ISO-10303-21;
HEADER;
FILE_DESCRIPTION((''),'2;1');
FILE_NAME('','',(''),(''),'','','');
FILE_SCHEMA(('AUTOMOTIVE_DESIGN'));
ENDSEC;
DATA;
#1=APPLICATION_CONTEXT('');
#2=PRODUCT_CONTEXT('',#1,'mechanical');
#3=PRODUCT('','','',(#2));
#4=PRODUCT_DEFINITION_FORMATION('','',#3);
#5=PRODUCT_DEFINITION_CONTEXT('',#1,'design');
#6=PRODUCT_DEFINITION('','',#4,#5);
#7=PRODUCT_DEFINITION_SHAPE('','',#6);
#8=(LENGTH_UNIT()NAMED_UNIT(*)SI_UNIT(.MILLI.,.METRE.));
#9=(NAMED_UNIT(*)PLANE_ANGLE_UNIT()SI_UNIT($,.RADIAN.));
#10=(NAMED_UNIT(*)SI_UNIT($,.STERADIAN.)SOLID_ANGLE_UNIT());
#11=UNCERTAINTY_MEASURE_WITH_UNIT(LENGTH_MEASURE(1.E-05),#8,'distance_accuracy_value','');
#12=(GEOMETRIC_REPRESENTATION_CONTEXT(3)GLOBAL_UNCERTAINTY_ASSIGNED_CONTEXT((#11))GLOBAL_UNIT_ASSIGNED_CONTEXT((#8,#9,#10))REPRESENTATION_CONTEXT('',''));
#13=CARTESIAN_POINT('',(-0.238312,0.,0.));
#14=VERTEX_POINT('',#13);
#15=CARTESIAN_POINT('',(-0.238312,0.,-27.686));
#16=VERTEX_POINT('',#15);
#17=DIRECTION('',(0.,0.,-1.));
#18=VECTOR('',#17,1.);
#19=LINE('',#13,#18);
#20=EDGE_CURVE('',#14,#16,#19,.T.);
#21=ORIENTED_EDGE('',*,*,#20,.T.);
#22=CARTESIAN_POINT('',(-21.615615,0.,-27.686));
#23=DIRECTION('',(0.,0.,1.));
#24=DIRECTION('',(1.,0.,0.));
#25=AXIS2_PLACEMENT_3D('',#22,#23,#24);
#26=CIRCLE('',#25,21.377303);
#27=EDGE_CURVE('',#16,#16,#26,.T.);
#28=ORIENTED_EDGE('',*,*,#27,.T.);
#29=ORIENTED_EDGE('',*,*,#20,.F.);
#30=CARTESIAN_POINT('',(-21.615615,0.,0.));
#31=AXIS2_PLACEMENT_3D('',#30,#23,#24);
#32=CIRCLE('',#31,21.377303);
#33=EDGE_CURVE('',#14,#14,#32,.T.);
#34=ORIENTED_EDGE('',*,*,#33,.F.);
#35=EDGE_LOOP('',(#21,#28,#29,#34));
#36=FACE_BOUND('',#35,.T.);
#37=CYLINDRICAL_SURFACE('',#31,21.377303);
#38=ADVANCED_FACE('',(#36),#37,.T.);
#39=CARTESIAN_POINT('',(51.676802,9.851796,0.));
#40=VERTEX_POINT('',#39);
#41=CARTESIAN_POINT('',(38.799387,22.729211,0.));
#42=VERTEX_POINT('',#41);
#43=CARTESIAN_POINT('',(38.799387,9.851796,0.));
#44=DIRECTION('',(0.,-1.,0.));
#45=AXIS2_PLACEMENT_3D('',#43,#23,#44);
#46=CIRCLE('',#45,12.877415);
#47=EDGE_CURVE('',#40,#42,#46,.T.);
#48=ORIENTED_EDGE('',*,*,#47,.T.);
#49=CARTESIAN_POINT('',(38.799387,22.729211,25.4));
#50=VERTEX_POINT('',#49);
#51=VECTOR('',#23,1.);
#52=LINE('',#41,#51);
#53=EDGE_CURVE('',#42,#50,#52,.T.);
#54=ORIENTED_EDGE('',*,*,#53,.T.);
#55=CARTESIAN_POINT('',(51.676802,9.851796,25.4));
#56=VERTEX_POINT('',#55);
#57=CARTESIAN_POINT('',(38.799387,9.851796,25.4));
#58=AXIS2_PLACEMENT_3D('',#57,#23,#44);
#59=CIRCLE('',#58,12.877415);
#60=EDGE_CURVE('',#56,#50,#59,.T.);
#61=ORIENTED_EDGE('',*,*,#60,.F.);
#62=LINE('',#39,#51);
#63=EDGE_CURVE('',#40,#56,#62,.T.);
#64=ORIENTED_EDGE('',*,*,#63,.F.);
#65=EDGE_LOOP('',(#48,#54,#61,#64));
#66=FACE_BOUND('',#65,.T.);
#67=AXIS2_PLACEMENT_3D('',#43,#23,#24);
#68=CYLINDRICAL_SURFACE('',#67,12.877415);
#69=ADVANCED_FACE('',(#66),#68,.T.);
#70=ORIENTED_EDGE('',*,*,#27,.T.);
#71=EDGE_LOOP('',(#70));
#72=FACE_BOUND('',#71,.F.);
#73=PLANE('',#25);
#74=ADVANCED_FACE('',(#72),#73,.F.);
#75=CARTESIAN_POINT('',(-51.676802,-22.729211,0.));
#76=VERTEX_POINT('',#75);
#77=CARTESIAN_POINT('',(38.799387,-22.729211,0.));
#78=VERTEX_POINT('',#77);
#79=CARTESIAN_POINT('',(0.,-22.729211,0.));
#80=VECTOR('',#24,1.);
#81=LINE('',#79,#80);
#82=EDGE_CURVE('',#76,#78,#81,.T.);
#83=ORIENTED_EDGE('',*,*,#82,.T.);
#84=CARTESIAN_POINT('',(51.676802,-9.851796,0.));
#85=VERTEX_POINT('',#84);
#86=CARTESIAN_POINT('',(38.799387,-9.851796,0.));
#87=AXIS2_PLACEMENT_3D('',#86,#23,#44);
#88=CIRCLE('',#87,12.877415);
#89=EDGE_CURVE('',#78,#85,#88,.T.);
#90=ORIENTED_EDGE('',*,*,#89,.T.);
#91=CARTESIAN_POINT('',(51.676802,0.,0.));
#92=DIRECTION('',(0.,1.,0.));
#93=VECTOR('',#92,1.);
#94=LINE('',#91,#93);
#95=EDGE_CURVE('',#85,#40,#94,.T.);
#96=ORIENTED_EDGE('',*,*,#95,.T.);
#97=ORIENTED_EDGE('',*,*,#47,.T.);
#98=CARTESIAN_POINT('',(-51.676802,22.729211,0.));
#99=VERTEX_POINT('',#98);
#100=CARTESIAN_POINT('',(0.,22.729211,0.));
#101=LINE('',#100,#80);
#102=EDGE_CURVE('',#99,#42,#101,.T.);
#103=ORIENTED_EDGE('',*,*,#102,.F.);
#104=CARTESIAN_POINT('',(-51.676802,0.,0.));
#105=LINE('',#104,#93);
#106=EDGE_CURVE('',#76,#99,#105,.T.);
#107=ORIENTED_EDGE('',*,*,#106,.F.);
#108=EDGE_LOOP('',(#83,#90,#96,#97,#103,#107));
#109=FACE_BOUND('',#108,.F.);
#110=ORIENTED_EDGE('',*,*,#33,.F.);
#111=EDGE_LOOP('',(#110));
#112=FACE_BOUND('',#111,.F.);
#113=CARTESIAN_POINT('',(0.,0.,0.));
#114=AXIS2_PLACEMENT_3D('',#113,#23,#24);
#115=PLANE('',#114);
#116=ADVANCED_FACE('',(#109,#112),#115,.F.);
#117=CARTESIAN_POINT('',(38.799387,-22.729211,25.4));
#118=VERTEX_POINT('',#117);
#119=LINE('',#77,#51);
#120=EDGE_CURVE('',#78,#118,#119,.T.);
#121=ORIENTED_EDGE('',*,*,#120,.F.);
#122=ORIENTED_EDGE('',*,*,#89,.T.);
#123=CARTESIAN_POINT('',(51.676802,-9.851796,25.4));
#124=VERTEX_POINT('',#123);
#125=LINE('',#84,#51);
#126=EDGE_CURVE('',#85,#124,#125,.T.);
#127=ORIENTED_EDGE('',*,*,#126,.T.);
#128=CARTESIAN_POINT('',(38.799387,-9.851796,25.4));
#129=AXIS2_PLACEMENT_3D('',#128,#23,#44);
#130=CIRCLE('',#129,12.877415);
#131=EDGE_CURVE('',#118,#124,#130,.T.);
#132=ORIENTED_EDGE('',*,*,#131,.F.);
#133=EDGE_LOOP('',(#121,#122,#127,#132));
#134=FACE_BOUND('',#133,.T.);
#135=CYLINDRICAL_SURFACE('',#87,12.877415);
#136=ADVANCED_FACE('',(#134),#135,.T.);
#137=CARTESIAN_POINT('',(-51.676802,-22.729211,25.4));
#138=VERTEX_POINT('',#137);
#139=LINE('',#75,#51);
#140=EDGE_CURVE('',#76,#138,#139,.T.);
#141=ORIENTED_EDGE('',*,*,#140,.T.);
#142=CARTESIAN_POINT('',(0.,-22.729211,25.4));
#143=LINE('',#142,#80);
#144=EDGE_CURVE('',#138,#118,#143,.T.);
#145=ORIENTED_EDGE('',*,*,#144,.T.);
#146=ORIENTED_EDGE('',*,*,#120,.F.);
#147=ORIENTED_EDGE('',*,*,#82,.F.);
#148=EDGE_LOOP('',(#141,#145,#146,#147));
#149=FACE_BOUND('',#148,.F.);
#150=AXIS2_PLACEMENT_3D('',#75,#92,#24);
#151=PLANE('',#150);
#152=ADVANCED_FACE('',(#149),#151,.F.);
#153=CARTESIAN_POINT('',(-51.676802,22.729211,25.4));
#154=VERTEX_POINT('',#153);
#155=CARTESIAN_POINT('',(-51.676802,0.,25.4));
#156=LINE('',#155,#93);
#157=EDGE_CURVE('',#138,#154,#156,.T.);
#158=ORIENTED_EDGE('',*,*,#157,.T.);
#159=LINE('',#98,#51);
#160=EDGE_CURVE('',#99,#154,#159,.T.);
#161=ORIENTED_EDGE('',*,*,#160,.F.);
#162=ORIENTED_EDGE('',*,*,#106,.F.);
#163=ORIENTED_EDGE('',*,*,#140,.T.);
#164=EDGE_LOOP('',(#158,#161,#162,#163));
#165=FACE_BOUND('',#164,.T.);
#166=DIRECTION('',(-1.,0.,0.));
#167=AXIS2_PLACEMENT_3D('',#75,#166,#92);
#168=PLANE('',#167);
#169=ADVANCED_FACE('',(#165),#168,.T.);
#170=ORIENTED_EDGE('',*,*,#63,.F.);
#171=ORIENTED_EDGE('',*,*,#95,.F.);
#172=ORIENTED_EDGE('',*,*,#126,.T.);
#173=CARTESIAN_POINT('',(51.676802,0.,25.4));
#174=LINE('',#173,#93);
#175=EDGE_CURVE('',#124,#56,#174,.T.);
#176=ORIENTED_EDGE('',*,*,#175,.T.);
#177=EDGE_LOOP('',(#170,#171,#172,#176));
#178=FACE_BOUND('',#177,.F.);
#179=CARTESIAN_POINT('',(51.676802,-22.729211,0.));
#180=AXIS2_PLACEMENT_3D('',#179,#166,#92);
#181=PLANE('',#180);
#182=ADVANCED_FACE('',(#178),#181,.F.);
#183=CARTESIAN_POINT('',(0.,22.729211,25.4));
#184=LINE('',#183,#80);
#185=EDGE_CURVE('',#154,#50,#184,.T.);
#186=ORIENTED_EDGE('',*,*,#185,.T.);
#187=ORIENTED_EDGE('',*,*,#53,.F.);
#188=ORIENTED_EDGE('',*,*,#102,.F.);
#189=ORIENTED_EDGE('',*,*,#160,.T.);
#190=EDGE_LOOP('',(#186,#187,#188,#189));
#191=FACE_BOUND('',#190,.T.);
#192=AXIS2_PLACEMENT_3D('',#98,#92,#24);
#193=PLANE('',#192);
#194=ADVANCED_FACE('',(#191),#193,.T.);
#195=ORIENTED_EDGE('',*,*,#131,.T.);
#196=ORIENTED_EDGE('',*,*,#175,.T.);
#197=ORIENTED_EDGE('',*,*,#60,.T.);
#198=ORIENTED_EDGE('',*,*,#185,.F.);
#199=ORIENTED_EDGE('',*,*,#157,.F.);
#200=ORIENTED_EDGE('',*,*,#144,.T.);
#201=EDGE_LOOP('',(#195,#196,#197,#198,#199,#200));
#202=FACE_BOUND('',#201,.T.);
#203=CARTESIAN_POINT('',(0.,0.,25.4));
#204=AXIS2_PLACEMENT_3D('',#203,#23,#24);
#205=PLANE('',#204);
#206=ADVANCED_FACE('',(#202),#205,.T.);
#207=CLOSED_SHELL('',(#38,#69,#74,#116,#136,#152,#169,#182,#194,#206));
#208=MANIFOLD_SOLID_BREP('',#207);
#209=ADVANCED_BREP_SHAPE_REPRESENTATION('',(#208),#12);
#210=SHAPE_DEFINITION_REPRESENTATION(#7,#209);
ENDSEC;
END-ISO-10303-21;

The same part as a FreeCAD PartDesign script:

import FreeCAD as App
import Part
import Sketcher
Q = App.Units.Quantity


def edges_at(feature, points):
    """Names of the edges that pass closest to the given points."""
    edges = feature.Shape.Edges
    near = lambda p: min(range(len(edges)), key=lambda i: edges[i].distToShape(Part.Vertex(*p))[0])
    return sorted({f"Edge{near(p) + 1}" for p in points})

doc = App.newDocument("Part")
body = doc.addObject("PartDesign::Body", "Body")

# Sketch on XY plane
sketch1 = doc.addObject("Sketcher::SketchObject", "Sketch")
body.addObject(sketch1)
sketch1.AttachmentSupport = (doc.XY_Plane, [""])
sketch1.MapMode = "FlatFace"
sketch1.addGeometry([
    Part.LineSegment(App.Vector(-52, 23, 0), App.Vector(-52, -23, 0)),
    Part.LineSegment(App.Vector(-52, -23, 0), App.Vector(52, -23, 0)),
    Part.LineSegment(App.Vector(52, -23, 0), App.Vector(52, 23, 0)),
    Part.LineSegment(App.Vector(52, 23, 0), App.Vector(-52, 23, 0)),
], False)
sketch1.addConstraint([
    Sketcher.Constraint("Coincident", 0, 2, 1, 1),
    Sketcher.Constraint("Coincident", 1, 2, 2, 1),
    Sketcher.Constraint("Coincident", 2, 2, 3, 1),
    Sketcher.Constraint("Coincident", 3, 2, 0, 1),
    Sketcher.Constraint("Vertical", 0),
    Sketcher.Constraint("Horizontal", 1),
    Sketcher.Constraint("Vertical", 2),
    Sketcher.Constraint("Horizontal", 3),
    Sketcher.Constraint("Symmetric", 0, 2, 2, 2, -1, 1),
    Sketcher.Constraint("DistanceX", 1, 1, 1, 2, Q("103.353604 mm")),
    Sketcher.Constraint("DistanceY", 0, 2, 0, 1, Q("45.458422 mm")),
])
pad1 = doc.addObject("PartDesign::Pad", "Pad")
body.addObject(pad1)
pad1.Profile = sketch1
pad1.Length = Q("1 in")
doc.recompute()

fillet = doc.addObject("PartDesign::Fillet", "Fillet")
body.addObject(fillet)
fillet.Base = (pad1, edges_at(pad1, [(51.677, 22.729, 12.7), (51.677, -22.729, 12.7)]))
fillet.Radius = 12.877415

# Sketch on XY plane
sketch2 = doc.addObject("Sketcher::SketchObject", "Sketch001")
body.addObject(sketch2)
sketch2.AttachmentSupport = (doc.XY_Plane, [""])
sketch2.MapMode = "FlatFace"
sketch2.addGeometry(Part.Circle(App.Vector(-22, 0, 0), App.Vector(0, 0, 1), 21), False)
sketch2.addConstraint([
    Sketcher.Constraint("PointOnObject", 0, 3, -1),
    Sketcher.Constraint("Diameter", 0, Q("42.754606 mm")),
    Sketcher.Constraint("DistanceX", 0, 3, -1, 1, Q("21.615615 mm")),
])
pad2 = doc.addObject("PartDesign::Pad", "Pad001")
body.addObject(pad2)
pad2.Profile = sketch2
pad2.Length = Q("1.09 in")
pad2.Reversed = True

doc.recompute()
